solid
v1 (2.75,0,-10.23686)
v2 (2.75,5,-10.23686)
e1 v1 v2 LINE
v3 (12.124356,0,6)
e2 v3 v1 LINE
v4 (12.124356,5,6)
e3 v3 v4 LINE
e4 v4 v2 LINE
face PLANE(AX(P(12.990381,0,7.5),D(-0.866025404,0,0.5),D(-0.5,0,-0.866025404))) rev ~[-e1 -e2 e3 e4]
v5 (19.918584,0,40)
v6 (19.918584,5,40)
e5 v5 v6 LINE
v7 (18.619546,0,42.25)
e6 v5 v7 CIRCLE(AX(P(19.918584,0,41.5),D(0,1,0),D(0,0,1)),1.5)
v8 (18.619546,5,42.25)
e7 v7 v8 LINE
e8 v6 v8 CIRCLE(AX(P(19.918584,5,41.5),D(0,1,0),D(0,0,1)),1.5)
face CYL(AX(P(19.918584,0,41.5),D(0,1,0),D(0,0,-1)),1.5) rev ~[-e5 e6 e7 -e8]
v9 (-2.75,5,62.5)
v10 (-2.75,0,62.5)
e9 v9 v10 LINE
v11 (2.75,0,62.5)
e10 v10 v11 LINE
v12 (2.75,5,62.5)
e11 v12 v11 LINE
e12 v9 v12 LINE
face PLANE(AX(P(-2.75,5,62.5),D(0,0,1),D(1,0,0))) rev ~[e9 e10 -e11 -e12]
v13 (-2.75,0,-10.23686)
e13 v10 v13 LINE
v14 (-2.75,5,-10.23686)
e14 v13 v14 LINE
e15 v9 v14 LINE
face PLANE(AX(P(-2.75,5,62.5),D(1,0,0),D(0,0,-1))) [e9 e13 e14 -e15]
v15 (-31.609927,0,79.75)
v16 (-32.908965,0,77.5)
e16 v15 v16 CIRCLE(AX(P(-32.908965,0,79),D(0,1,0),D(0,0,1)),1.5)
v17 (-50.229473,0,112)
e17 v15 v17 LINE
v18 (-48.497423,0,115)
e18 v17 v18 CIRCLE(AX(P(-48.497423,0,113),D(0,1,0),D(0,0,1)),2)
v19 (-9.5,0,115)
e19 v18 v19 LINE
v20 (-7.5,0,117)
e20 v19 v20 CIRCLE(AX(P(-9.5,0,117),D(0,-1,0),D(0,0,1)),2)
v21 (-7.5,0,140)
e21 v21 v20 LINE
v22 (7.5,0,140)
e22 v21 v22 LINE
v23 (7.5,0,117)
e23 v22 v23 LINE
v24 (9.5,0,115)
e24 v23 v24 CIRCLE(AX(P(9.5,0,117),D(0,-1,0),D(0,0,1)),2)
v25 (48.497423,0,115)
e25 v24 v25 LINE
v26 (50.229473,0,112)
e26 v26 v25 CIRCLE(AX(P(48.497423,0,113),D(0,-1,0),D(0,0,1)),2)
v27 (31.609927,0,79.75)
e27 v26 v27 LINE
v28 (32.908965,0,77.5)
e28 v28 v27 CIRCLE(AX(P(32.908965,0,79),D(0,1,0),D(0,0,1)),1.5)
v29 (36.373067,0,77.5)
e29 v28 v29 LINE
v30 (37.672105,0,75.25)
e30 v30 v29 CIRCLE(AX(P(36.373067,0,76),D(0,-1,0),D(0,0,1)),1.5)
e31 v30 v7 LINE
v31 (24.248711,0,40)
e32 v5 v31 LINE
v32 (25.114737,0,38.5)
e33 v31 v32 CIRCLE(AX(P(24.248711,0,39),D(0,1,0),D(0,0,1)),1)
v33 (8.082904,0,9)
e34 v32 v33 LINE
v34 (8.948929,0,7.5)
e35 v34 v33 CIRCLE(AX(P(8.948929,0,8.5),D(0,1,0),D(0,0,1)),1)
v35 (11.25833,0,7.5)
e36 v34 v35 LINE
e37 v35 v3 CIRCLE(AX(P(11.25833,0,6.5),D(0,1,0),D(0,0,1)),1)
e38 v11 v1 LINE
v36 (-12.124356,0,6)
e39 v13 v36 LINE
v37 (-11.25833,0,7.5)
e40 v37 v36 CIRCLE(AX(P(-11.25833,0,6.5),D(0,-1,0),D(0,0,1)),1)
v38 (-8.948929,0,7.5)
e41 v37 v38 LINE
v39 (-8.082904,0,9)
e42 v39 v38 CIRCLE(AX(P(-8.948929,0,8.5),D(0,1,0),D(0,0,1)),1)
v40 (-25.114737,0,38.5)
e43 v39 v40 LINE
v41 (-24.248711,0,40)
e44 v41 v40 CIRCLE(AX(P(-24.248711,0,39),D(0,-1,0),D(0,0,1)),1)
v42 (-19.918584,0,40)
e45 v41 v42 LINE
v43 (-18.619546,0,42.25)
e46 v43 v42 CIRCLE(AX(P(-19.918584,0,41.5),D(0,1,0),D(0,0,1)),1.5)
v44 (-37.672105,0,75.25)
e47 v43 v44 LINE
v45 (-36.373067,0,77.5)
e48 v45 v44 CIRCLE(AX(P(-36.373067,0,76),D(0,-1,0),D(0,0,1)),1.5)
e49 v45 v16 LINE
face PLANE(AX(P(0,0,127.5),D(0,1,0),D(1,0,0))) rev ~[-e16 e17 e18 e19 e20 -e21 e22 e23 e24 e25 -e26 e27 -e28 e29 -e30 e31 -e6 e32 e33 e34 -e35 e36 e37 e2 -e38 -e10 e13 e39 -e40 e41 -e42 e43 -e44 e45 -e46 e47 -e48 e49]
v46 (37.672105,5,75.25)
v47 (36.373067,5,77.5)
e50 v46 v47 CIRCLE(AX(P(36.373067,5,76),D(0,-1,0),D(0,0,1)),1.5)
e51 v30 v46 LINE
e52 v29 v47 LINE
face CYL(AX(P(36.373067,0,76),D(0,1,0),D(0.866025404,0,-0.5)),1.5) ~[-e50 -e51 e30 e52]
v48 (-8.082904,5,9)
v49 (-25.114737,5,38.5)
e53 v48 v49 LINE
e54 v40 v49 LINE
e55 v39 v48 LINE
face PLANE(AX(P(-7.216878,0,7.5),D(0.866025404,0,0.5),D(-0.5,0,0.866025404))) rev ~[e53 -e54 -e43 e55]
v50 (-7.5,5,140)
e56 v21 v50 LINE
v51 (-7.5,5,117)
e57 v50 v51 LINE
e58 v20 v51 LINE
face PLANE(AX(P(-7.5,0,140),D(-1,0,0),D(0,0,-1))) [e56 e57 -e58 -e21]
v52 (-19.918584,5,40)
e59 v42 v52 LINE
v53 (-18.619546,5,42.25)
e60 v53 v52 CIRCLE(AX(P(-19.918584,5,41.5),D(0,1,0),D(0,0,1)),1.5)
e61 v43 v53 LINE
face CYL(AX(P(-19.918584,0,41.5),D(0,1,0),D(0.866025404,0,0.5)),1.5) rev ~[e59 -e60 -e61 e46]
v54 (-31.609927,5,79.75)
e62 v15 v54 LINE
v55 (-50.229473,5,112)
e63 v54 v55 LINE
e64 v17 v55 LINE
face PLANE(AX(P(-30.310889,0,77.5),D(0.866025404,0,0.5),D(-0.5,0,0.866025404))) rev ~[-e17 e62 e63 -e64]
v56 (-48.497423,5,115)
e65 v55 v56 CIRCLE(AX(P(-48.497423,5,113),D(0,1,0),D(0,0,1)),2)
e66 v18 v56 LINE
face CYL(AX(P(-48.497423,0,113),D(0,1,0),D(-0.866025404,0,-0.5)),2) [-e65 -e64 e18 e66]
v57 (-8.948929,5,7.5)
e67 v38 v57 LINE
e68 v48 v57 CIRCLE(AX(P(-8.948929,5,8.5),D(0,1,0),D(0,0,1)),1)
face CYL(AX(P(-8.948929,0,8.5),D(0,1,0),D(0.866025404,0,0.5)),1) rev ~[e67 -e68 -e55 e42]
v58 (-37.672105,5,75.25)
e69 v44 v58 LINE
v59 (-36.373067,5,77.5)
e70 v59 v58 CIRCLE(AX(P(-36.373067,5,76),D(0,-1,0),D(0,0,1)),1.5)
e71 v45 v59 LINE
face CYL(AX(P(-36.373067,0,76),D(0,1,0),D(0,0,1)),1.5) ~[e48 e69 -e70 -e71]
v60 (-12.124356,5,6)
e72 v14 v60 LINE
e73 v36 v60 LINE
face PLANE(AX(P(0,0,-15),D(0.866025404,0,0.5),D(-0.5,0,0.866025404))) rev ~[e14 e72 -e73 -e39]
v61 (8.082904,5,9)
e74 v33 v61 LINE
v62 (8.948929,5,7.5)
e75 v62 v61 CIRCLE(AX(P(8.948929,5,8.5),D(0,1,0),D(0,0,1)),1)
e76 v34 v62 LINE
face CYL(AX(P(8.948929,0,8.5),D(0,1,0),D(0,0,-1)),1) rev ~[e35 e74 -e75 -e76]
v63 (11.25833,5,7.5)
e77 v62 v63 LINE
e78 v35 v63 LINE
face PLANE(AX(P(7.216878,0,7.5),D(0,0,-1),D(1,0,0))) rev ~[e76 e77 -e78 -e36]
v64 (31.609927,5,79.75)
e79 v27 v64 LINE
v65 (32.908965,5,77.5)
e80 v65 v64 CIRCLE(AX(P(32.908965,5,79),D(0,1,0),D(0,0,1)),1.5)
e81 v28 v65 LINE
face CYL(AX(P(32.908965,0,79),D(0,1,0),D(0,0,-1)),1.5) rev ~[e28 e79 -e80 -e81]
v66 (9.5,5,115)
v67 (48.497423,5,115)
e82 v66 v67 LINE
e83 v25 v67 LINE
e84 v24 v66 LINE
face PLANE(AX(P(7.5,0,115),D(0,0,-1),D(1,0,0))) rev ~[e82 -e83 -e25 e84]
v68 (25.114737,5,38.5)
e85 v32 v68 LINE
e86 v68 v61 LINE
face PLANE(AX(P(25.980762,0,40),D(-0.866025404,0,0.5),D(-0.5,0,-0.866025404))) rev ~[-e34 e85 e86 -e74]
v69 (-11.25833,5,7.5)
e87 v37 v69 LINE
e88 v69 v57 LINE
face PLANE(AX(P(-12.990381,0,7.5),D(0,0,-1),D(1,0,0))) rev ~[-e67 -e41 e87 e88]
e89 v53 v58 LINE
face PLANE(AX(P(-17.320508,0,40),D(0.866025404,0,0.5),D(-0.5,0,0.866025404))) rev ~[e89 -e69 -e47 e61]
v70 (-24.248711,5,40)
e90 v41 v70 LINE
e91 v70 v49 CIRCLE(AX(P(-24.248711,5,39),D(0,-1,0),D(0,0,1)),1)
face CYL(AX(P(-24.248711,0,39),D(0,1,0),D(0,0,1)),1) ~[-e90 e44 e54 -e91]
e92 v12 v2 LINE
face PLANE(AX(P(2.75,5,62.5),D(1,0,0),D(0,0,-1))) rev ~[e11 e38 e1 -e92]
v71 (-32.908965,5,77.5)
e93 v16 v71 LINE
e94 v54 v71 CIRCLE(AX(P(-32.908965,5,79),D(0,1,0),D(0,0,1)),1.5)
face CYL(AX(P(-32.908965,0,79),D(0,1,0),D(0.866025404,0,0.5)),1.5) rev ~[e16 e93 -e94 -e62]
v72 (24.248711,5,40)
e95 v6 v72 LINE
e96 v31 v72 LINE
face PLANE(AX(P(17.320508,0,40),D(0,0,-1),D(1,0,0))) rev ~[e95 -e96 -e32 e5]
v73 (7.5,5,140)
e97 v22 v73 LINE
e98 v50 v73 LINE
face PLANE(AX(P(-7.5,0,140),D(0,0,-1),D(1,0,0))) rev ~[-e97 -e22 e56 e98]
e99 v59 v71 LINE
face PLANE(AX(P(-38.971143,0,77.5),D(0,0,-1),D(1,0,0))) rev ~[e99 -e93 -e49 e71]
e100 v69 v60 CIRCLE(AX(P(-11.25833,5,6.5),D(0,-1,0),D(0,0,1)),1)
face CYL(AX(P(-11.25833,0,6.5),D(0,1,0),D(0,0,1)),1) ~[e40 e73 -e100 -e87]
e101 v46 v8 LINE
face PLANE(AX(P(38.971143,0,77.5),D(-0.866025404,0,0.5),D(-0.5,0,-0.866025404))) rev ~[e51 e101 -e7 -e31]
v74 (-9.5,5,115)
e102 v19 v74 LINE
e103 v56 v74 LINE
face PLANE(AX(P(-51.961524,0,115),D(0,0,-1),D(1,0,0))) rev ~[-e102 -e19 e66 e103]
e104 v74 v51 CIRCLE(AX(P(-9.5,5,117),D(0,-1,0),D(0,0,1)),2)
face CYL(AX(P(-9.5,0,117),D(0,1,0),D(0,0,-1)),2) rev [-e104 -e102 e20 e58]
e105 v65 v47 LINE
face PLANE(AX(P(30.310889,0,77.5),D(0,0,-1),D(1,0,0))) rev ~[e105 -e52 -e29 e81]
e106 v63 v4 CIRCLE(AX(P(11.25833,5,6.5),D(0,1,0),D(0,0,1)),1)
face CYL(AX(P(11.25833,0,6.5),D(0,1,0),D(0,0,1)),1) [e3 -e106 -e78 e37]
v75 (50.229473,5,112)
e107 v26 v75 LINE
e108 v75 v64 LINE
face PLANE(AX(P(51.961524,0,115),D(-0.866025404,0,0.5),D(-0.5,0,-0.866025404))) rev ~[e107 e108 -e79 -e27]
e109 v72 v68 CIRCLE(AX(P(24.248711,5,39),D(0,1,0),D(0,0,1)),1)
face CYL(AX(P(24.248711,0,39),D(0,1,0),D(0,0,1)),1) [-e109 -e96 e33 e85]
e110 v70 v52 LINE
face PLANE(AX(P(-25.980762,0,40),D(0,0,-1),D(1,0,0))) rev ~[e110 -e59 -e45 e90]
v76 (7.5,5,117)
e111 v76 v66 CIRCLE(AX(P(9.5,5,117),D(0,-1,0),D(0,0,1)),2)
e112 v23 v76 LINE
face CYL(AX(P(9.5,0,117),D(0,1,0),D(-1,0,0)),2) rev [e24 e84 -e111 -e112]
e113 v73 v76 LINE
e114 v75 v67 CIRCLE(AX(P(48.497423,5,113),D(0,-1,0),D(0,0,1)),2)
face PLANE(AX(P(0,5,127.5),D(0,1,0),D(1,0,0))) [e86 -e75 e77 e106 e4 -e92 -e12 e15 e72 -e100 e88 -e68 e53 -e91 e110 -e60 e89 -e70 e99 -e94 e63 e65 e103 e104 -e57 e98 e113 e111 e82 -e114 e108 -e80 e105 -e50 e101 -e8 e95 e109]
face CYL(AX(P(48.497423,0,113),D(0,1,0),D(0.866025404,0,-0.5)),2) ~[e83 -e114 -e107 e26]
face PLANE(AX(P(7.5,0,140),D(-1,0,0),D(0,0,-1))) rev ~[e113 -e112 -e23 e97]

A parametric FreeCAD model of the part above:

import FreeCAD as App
import Part
import Sketcher
from FreeCAD import Vector
Q = App.Units.Quantity


def edges_at(feature, points):
    """Names of the edges that pass closest to the given points."""
    edges = feature.Shape.Edges
    near = lambda p: min(range(len(edges)), key=lambda i: edges[i].distToShape(Part.Vertex(*p))[0])
    return sorted({f"Edge{near(p) + 1}" for p in points})

doc = App.newDocument("Part")
params = doc.addObject("Spreadsheet::Sheet", "Params")
for row, (alias, value) in enumerate([
    ("sketch1_width", "15 mm"),
    ("sketch1_height", "25 mm"),
    ("pad1_length", "5 mm"),
    ("sketch2_width", "5.5 mm"),
    ("sketch2_height", "77.5 mm"),
    ("pocket1_length", "5 mm"),
    ("fillet_radius", "1.5 mm"),
    ("fillet2_radius", "1 mm"),
    ("fillet3_radius", "1.5 mm"),
    ("fillet4_radius", "1.5 mm"),
    ("fillet5_radius", "2 mm"),
    ("fillet6_radius", "1 mm"),
    ("fillet7_radius", "1 mm"),
    ("fillet8_radius", "2 mm"),
    ("fillet9_radius", "1.5 mm"),
    ("fillet10_radius", "1.5 mm"),
    ("fillet11_radius", "1.5 mm"),
    ("fillet12_radius", "1 mm"),
    ("fillet13_radius", "1 mm"),
    ("fillet14_radius", "1 mm"),
    ("fillet15_radius", "2 mm"),
    ("fillet16_radius", "2 mm"),
], start=1):
    params.set(f"A{row}", alias)
    params.set(f"B{row}", "=" + value)
    params.setAlias(f"B{row}", alias)

body = doc.addObject("PartDesign::Body", "Body")

# Sketch on XZ plane
sketch1 = doc.addObject("Sketcher::SketchObject", "Sketch")
body.addObject(sketch1)
sketch1.AttachmentSupport = (doc.XZ_Plane, [""])
sketch1.MapMode = "FlatFace"
sketch1.addGeometry(Part.LineSegment(Vector(-30, 78, 0), Vector(-52, 115, 0)), False)
sketch1.addGeometry(Part.LineSegment(Vector(-52, 115, 0), Vector(-8, 115, 0)), False)
sketch1.addGeometry(Part.LineSegment(Vector(-8, 115, 0), Vector(-8, 140, 0)), False)
sketch1.addGeometry(Part.LineSegment(Vector(-8, 140, 0), Vector(8, 140, 0)), False)
sketch1.addGeometry(Part.LineSegment(Vector(8, 140, 0), Vector(8, 115, 0)), False)
sketch1.addGeometry(Part.LineSegment(Vector(8, 115, 0), Vector(52, 115, 0)), False)
sketch1.addGeometry(Part.LineSegment(Vector(52, 115, 0), Vector(30, 78, 0)), False)
sketch1.addGeometry(Part.LineSegment(Vector(30, 78, 0), Vector(39, 78, 0)), False)
sketch1.addGeometry(Part.LineSegment(Vector(39, 78, 0), Vector(17, 40, 0)), False)
sketch1.addGeometry(Part.LineSegment(Vector(17, 40, 0), Vector(26, 40, 0)), False)
sketch1.addGeometry(Part.LineSegment(Vector(26, 40, 0), Vector(7, 8, 0)), False)
sketch1.addGeometry(Part.LineSegment(Vector(7, 8, 0), Vector(13, 8, 0)), False)
sketch1.addGeometry(Part.LineSegment(Vector(13, 8, 0), Vector(0, -15, 0)), False)
sketch1.addGeometry(Part.LineSegment(Vector(0, -15, 0), Vector(-13, 8, 0)), False)
sketch1.addGeometry(Part.LineSegment(Vector(-13, 8, 0), Vector(-7, 8, 0)), False)
sketch1.addGeometry(Part.LineSegment(Vector(-7, 8, 0), Vector(-26, 40, 0)), False)
sketch1.addGeometry(Part.LineSegment(Vector(-26, 40, 0), Vector(-17, 40, 0)), False)
sketch1.addGeometry(Part.LineSegment(Vector(-17, 40, 0), Vector(-39, 78, 0)), False)
sketch1.addGeometry(Part.LineSegment(Vector(-39, 78, 0), Vector(-30, 78, 0)), False)
sketch1.addConstraint(Sketcher.Constraint("Coincident", 0, 2, 1, 1))
sketch1.addConstraint(Sketcher.Constraint("Coincident", 1, 2, 2, 1))
sketch1.addConstraint(Sketcher.Constraint("Coincident", 2, 2, 3, 1))
sketch1.addConstraint(Sketcher.Constraint("Coincident", 3, 2, 4, 1))
sketch1.addConstraint(Sketcher.Constraint("Coincident", 4, 2, 5, 1))
sketch1.addConstraint(Sketcher.Constraint("Coincident", 5, 2, 6, 1))
sketch1.addConstraint(Sketcher.Constraint("Coincident", 6, 2, 7, 1))
sketch1.addConstraint(Sketcher.Constraint("Coincident", 7, 2, 8, 1))
sketch1.addConstraint(Sketcher.Constraint("Coincident", 8, 2, 9, 1))
sketch1.addConstraint(Sketcher.Constraint("Coincident", 9, 2, 10, 1))
sketch1.addConstraint(Sketcher.Constraint("Coincident", 10, 2, 11, 1))
sketch1.addConstraint(Sketcher.Constraint("Coincident", 11, 2, 12, 1))
sketch1.addConstraint(Sketcher.Constraint("Coincident", 12, 2, 13, 1))
sketch1.addConstraint(Sketcher.Constraint("Coincident", 13, 2, 14, 1))
sketch1.addConstraint(Sketcher.Constraint("Coincident", 14, 2, 15, 1))
sketch1.addConstraint(Sketcher.Constraint("Coincident", 15, 2, 16, 1))
sketch1.addConstraint(Sketcher.Constraint("Coincident", 16, 2, 17, 1))
sketch1.addConstraint(Sketcher.Constraint("Coincident", 17, 2, 18, 1))
sketch1.addConstraint(Sketcher.Constraint("Coincident", 18, 2, 0, 1))
sketch1.addConstraint(Sketcher.Constraint("Horizontal", 1))
sketch1.addConstraint(Sketcher.Constraint("Vertical", 2))
sketch1.addConstraint(Sketcher.Constraint("Horizontal", 3))
sketch1.addConstraint(Sketcher.Constraint("Vertical", 4))
sketch1.addConstraint(Sketcher.Constraint("Horizontal", 5))
sketch1.addConstraint(Sketcher.Constraint("Horizontal", 7))
sketch1.addConstraint(Sketcher.Constraint("Horizontal", 9))
sketch1.addConstraint(Sketcher.Constraint("Horizontal", 11))
sketch1.addConstraint(Sketcher.Constraint("Horizontal", 14))
sketch1.addConstraint(Sketcher.Constraint("Horizontal", 16))
sketch1.addConstraint(Sketcher.Constraint("Horizontal", 18))
sketch1.addConstraint(Sketcher.Constraint("Symmetric", 1, 2, 4, 2, -2))
sketch1.addConstraint(Sketcher.Constraint("Symmetric", 11, 2, 13, 2, -2))
sketch1.addConstraint(Sketcher.Constraint("Symmetric", 9, 2, 15, 2, -2))
sketch1.addConstraint(Sketcher.Constraint("Symmetric", 7, 2, 17, 2, -2))
sketch1.addConstraint(Sketcher.Constraint("PointOnObject", 12, 2, -2))
sketch1.addConstraint(Sketcher.Constraint("Parallel", 6, 8))
sketch1.addConstraint(Sketcher.Constraint("Parallel", 8, 10))
sketch1.addConstraint(Sketcher.Constraint("Parallel", 10, 12))
sketch1.addConstraint(Sketcher.Constraint("Parallel", 0, 13))
sketch1.addConstraint(Sketcher.Constraint("Parallel", 13, 15))
sketch1.addConstraint(Sketcher.Constraint("Parallel", 15, 17))
sketch1.addConstraint(Sketcher.Constraint("Equal", 1, 5))
sketch1.addConstraint(Sketcher.Constraint("Equal", 7, 9))
sketch1.addConstraint(Sketcher.Constraint("Equal", 6, 8))
sketch1.addConstraint(Sketcher.Constraint("DistanceX", 3, 1, 3, 2, 15.0))
sketch1.addConstraint(Sketcher.Constraint("DistanceY", 2, 1, 2, 2, 25.0))
sketch1.addConstraint(Sketcher.Constraint("Angle", 0, Q("120 deg")))
sketch1.addConstraint(Sketcher.Constraint("DistanceY", -1, 1, 0, 2, 115.0))
sketch1.addConstraint(Sketcher.Constraint("DistanceY", -1, 1, 8, 2, 40.0))
sketch1.addConstraint(Sketcher.Constraint("DistanceY", 12, 2, -1, 1, 15.0))
sketch1.addConstraint(Sketcher.Constraint("DistanceY", 10, 2, 6, 2, 70.0))
sketch1.addConstraint(Sketcher.Constraint("DistanceX", 1, 1, 1, 2, 44.461524))
sketch1.addConstraint(Sketcher.Constraint("DistanceX", 7, 1, 7, 2, 8.660254))
sketch1.setExpression("Constraints[44]", "Params.sketch1_width")
sketch1.setExpression("Constraints[45]", "Params.sketch1_height")
pad1 = doc.addObject("PartDesign::Pad", "Pad")
body.addObject(pad1)
pad1.Profile = sketch1
pad1.setExpression("Length", "Params.pad1_length")
pad1.Reversed = True

# Sketch on XZ plane
sketch2 = doc.addObject("Sketcher::SketchObject", "Sketch001")
body.addObject(sketch2)
sketch2.AttachmentSupport = (doc.XZ_Plane, [""])
sketch2.MapMode = "FlatFace"
sketch2.AttachmentOffset = App.Placement(Vector(0, 0, -5), App.Rotation())
sketch2.addGeometry(Part.LineSegment(Vector(-3, -15, 0), Vector(-3, 62, 0)), False)
sketch2.addGeometry(Part.LineSegment(Vector(-3, 62, 0), Vector(3, 62, 0)), False)
sketch2.addGeometry(Part.LineSegment(Vector(3, 62, 0), Vector(3, -15, 0)), False)
sketch2.addGeometry(Part.LineSegment(Vector(3, -15, 0), Vector(-3, -15, 0)), False)
sketch2.addConstraint(Sketcher.Constraint("Coincident", 0, 2, 1, 1))
sketch2.addConstraint(Sketcher.Constraint("Coincident", 1, 2, 2, 1))
sketch2.addConstraint(Sketcher.Constraint("Coincident", 2, 2, 3, 1))
sketch2.addConstraint(Sketcher.Constraint("Coincident", 3, 2, 0, 1))
sketch2.addConstraint(Sketcher.Constraint("Vertical", 0))
sketch2.addConstraint(Sketcher.Constraint("Horizontal", 1))
sketch2.addConstraint(Sketcher.Constraint("Vertical", 2))
sketch2.addConstraint(Sketcher.Constraint("Horizontal", 3))
sketch2.addConstraint(Sketcher.Constraint("DistanceX", 1, 1, 1, 2, 5.5))
sketch2.addConstraint(Sketcher.Constraint("DistanceY", 0, 1, 0, 2, 77.5))
sketch2.addConstraint(Sketcher.Constraint("DistanceY", 2, 2, -1, 1, 15.0))
sketch2.addConstraint(Sketcher.Constraint("DistanceX", 0, 2, -1, 1, 2.75))
sketch2.setExpression("Constraints[8]", "Params.sketch2_width")
sketch2.setExpression("Constraints[9]", "Params.sketch2_height")
pocket1 = doc.addObject("PartDesign::Pocket", "Pocket")
body.addObject(pocket1)
pocket1.Profile = sketch2
pocket1.setExpression("Length", "Params.pocket1_length")
pocket1.Reversed = True
doc.recompute()

fillet = doc.addObject("PartDesign::Fillet", "Fillet")
body.addObject(fillet)
fillet.Base = (pocket1, edges_at(pocket1, [(17.321, 2.5, 40)]))
fillet.setExpression("Radius", "Params.fillet_radius")
doc.recompute()

fillet2 = doc.addObject("PartDesign::Fillet", "Fillet001")
body.addObject(fillet2)
fillet2.Base = (fillet, edges_at(fillet, [(25.981, 2.5, 40)]))
fillet2.setExpression("Radius", "Params.fillet2_radius")
doc.recompute()

fillet3 = doc.addObject("PartDesign::Fillet", "Fillet002")
body.addObject(fillet3)
fillet3.Base = (fillet2, edges_at(fillet2, [(38.971, 2.5, 77.5)]))
fillet3.setExpression("Radius", "Params.fillet3_radius")
doc.recompute()

fillet4 = doc.addObject("PartDesign::Fillet", "Fillet003")
body.addObject(fillet4)
fillet4.Base = (fillet3, edges_at(fillet3, [(30.311, 2.5, 77.5)]))
fillet4.setExpression("Radius", "Params.fillet4_radius")
doc.recompute()

fillet5 = doc.addObject("PartDesign::Fillet", "Fillet004")
body.addObject(fillet5)
fillet5.Base = (fillet4, edges_at(fillet4, [(51.962, 2.5, 115)]))
fillet5.setExpression("Radius", "Params.fillet5_radius")
doc.recompute()

fillet6 = doc.addObject("PartDesign::Fillet", "Fillet005")
body.addObject(fillet6)
fillet6.Base = (fillet5, edges_at(fillet5, [(12.99, 2.5, 7.5)]))
fillet6.setExpression("Radius", "Params.fillet6_radius")
doc.recompute()

fillet7 = doc.addObject("PartDesign::Fillet", "Fillet006")
body.addObject(fillet7)
fillet7.Base = (fillet6, edges_at(fillet6, [(7.217, 2.5, 7.5)]))
fillet7.setExpression("Radius", "Params.fillet7_radius")
doc.recompute()

fillet8 = doc.addObject("PartDesign::Fillet", "Fillet007")
body.addObject(fillet8)
fillet8.Base = (fillet7, edges_at(fillet7, [(-51.962, 2.5, 115)]))
fillet8.setExpression("Radius", "Params.fillet8_radius")
doc.recompute()

fillet9 = doc.addObject("PartDesign::Fillet", "Fillet008")
body.addObject(fillet9)
fillet9.Base = (fillet8, edges_at(fillet8, [(-30.311, 2.5, 77.5)]))
fillet9.setExpression("Radius", "Params.fillet9_radius")
doc.recompute()

fillet10 = doc.addObject("PartDesign::Fillet", "Fillet009")
body.addObject(fillet10)
fillet10.Base = (fillet9, edges_at(fillet9, [(-38.971, 2.5, 77.5)]))
fillet10.setExpression("Radius", "Params.fillet10_radius")
doc.recompute()

fillet11 = doc.addObject("PartDesign::Fillet", "Fillet010")
body.addObject(fillet11)
fillet11.Base = (fillet10, edges_at(fillet10, [(-17.321, 2.5, 40)]))
fillet11.setExpression("Radius", "Params.fillet11_radius")
doc.recompute()

fillet12 = doc.addObject("PartDesign::Fillet", "Fillet011")
body.addObject(fillet12)
fillet12.Base = (fillet11, edges_at(fillet11, [(-25.981, 2.5, 40)]))
fillet12.setExpression("Radius", "Params.fillet12_radius")
doc.recompute()

fillet13 = doc.addObject("PartDesign::Fillet", "Fillet012")
body.addObject(fillet13)
fillet13.Base = (fillet12, edges_at(fillet12, [(-7.217, 2.5, 7.5)]))
fillet13.setExpression("Radius", "Params.fillet13_radius")
doc.recompute()

fillet14 = doc.addObject("PartDesign::Fillet", "Fillet013")
body.addObject(fillet14)
fillet14.Base = (fillet13, edges_at(fillet13, [(-12.99, 2.5, 7.5)]))
fillet14.setExpression("Radius", "Params.fillet14_radius")
doc.recompute()

fillet15 = doc.addObject("PartDesign::Fillet", "Fillet014")
body.addObject(fillet15)
fillet15.Base = (fillet14, edges_at(fillet14, [(-7.5, 2.5, 115)]))
fillet15.setExpression("Radius", "Params.fillet15_radius")
doc.recompute()

fillet16 = doc.addObject("PartDesign::Fillet", "Fillet015")
body.addObject(fillet16)
fillet16.Base = (fillet15, edges_at(fillet15, [(7.5, 2.5, 115)]))
fillet16.setExpression("Radius", "Params.fillet16_radius")

doc.recompute()
